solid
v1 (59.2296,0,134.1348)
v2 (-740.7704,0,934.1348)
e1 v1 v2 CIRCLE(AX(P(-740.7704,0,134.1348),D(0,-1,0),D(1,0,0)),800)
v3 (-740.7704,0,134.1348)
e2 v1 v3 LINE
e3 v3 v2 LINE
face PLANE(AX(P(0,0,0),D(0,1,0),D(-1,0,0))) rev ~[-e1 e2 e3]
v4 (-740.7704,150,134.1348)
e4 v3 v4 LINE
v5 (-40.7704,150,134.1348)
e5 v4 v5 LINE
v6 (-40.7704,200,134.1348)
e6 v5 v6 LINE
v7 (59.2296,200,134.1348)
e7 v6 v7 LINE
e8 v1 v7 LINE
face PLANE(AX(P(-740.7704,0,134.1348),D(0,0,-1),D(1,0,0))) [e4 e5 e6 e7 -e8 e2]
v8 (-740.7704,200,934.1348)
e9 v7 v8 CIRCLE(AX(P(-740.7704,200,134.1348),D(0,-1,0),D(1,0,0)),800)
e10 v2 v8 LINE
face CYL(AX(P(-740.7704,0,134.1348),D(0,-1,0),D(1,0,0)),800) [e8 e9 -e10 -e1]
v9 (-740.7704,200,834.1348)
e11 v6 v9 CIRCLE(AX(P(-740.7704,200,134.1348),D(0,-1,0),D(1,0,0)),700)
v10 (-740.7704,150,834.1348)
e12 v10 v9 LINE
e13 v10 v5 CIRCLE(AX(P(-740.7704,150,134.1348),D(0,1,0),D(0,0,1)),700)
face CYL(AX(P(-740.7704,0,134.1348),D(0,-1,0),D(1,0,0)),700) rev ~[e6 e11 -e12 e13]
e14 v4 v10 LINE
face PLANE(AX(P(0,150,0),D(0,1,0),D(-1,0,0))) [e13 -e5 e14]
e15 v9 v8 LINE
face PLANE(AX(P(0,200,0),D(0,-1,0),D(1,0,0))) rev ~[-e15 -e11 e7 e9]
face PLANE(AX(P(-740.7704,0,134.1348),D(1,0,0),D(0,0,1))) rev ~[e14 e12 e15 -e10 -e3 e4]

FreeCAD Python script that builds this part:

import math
import FreeCAD as App
import Part
import Sketcher
Q = App.Units.Quantity

doc = App.newDocument("Part")
body = doc.addObject("PartDesign::Body", "Body")

# Sketch on XZ plane
sketch1 = body.newObject("Sketcher::SketchObject", "Sketch")
sketch1.AttachmentSupport = (doc.getObject("XZ_Plane"), [""])
sketch1.MapMode = "FlatFace"
sketch1.addGeometry([
    Part.LineSegment(App.Vector(-741, 134, 0), App.Vector(-741, 834, 0)),
    Part.ArcOfCircle(Part.Circle(App.Vector(-741, 134, 0), App.Vector(0, 0, 1), 700), math.radians(0), math.radians(90)),
    Part.LineSegment(App.Vector(-41, 134, 0), App.Vector(-741, 134, 0)),
], False)
sketch1.addConstraint([
    Sketcher.Constraint("Coincident", 0, 2, 1, 2),
    Sketcher.Constraint("Coincident", 1, 1, 2, 1),
    Sketcher.Constraint("Coincident", 2, 2, 0, 1),
    Sketcher.Constraint("Vertical", 0),
    Sketcher.Constraint("Horizontal", 2),
    Sketcher.Constraint("Coincident", 2, 2, 1, 3),
    Sketcher.Constraint("Radius", 1, Q("700 mm")),
    Sketcher.Constraint("DistanceX", 1, 3, -1, 1, Q("740.7704 mm")),
    Sketcher.Constraint("DistanceY", -1, 1, 1, 3, Q("134.1348 mm")),
])
pad1 = body.newObject("PartDesign::Pad", "Pad")
pad1.Profile = sketch1
pad1.Length = 150
pad1.Reversed = True

# Sketch on XZ plane
sketch2 = body.newObject("Sketcher::SketchObject", "Sketch001")
sketch2.AttachmentSupport = (doc.getObject("XZ_Plane"), [""])
sketch2.MapMode = "FlatFace"
sketch2.addGeometry([
    Part.ArcOfCircle(Part.Circle(App.Vector(-741, 134, 0), App.Vector(0, 0, 1), 700), math.radians(0), math.radians(90)),
    Part.LineSegment(App.Vector(-41, 134, 0), App.Vector(59, 134, 0)),
    Part.ArcOfCircle(Part.Circle(App.Vector(-741, 134, 0), App.Vector(0, 0, 1), 800), math.radians(0), math.radians(90)),
    Part.LineSegment(App.Vector(-741, 934, 0), App.Vector(-741, 834, 0)),
], False)
sketch2.addConstraint([
    Sketcher.Constraint("Coincident", 0, 1, 1, 1),
    Sketcher.Constraint("Coincident", 1, 2, 2, 1),
    Sketcher.Constraint("Coincident", 2, 2, 3, 1),
    Sketcher.Constraint("Coincident", 3, 2, 0, 2),
    Sketcher.Constraint("Horizontal", 1),
    Sketcher.Constraint("Vertical", 3),
    Sketcher.Constraint("Coincident", 2, 3, 0, 3),
    Sketcher.Constraint("DistanceX", 1, 1, 1, 2, Q("100 mm")),
    Sketcher.Constraint("Radius", 0, Q("700 mm")),
    Sketcher.Constraint("DistanceY", 1, 2, 2, 2, Q("800 mm")),
    Sketcher.Constraint("DistanceX", 3, 2, 0, 1, Q("700 mm")),
    Sketcher.Constraint("DistanceX", 0, 3, -1, 1, Q("740.7704 mm")),
    Sketcher.Constraint("DistanceY", -1, 1, 0, 3, Q("134.1348 mm")),
])
pad2 = body.newObject("PartDesign::Pad", "Pad001")
pad2.Profile = sketch2
pad2.Length = 200
pad2.Reversed = True

doc.recompute()
